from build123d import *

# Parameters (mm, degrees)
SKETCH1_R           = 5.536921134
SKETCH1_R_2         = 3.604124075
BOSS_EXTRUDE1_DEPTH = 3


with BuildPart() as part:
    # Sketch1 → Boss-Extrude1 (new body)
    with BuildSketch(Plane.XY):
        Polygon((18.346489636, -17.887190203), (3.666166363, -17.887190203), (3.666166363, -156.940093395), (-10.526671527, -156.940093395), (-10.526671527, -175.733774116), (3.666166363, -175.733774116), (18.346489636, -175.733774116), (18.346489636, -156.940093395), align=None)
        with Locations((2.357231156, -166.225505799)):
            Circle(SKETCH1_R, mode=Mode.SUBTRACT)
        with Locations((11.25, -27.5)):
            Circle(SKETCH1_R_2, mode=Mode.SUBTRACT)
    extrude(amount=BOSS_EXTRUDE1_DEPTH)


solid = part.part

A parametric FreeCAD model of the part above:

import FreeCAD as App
import Part
import Sketcher
from FreeCAD import Vector


def add_polygon(sketch, points):
    """Adds a closed chain of lines whose ends are joined by coincident constraints."""
    first, n = sketch.GeometryCount, len(points)
    for a, b in zip(points, points[1:] + points[:1]):
        sketch.addGeometry(Part.LineSegment(App.Vector(*a, 0), App.Vector(*b, 0)), False)
    for i in range(n):
        sketch.addConstraint(Sketcher.Constraint("Coincident", first + i, 2, first + (i + 1) % n, 1))

doc = App.newDocument("Part")
body = doc.addObject("PartDesign::Body", "Body")

# Sketch on XY plane
sketch1 = body.newObject("Sketcher::SketchObject", "Sketch")
sketch1.AttachmentSupport = (doc.getObject("XY_Plane"), [""])
sketch1.MapMode = "FlatFace"
add_polygon(sketch1, [(18.3, -17.9), (3.7, -17.9), (3.7, -156.9), (-10.5, -156.9), (-10.5, -175.7), (18.3, -175.7)])  # lines 0-5
sketch1.addGeometry(Part.Circle(Vector(2.4, -166.2, 0), Vector(0, 0, 1), 5.5), False)  # 6
sketch1.addGeometry(Part.Circle(Vector(11.2, -27.5, 0), Vector(0, 0, 1), 3.6), False)  # 7
sketch1.addConstraint([
    Sketcher.Constraint("Horizontal", 0),
    Sketcher.Constraint("Vertical", 1),
    Sketcher.Constraint("Horizontal", 2),
    Sketcher.Constraint("Vertical", 3),
    Sketcher.Constraint("Horizontal", 4),
    Sketcher.Constraint("Vertical", 5),
    Sketcher.Constraint("DistanceY", 7, 3, -1, 1, 27.5),
    Sketcher.Constraint("Diameter", 7, 7.208248),
    Sketcher.Constraint("DistanceX", -1, 1, 7, 3, 11.25),
    Sketcher.Constraint("Diameter", 6, 11.073842),
    Sketcher.Constraint("DistanceX", 4, 1, 4, 2, 28.873161),
    Sketcher.Constraint("DistanceY", 3, 2, 3, 1, 18.793681),
    Sketcher.Constraint("DistanceX", 0, 2, 0, 1, 14.680323),
    Sketcher.Constraint("DistanceY", 1, 2, 1, 1, 139.052903),
    Sketcher.Constraint("DistanceX", -1, 1, 6, 3, 2.357231),
    Sketcher.Constraint("DistanceY", 0, 2, -1, 1, 17.88719),
    Sketcher.Constraint("DistanceX", 2, 2, -1, 1, 10.526672),
    Sketcher.Constraint("DistanceY", 3, 2, 6, 3, 9.508268),
])
pad1 = body.newObject("PartDesign::Pad", "Pad")
pad1.Profile = sketch1
pad1.Length = 3

doc.recompute()
